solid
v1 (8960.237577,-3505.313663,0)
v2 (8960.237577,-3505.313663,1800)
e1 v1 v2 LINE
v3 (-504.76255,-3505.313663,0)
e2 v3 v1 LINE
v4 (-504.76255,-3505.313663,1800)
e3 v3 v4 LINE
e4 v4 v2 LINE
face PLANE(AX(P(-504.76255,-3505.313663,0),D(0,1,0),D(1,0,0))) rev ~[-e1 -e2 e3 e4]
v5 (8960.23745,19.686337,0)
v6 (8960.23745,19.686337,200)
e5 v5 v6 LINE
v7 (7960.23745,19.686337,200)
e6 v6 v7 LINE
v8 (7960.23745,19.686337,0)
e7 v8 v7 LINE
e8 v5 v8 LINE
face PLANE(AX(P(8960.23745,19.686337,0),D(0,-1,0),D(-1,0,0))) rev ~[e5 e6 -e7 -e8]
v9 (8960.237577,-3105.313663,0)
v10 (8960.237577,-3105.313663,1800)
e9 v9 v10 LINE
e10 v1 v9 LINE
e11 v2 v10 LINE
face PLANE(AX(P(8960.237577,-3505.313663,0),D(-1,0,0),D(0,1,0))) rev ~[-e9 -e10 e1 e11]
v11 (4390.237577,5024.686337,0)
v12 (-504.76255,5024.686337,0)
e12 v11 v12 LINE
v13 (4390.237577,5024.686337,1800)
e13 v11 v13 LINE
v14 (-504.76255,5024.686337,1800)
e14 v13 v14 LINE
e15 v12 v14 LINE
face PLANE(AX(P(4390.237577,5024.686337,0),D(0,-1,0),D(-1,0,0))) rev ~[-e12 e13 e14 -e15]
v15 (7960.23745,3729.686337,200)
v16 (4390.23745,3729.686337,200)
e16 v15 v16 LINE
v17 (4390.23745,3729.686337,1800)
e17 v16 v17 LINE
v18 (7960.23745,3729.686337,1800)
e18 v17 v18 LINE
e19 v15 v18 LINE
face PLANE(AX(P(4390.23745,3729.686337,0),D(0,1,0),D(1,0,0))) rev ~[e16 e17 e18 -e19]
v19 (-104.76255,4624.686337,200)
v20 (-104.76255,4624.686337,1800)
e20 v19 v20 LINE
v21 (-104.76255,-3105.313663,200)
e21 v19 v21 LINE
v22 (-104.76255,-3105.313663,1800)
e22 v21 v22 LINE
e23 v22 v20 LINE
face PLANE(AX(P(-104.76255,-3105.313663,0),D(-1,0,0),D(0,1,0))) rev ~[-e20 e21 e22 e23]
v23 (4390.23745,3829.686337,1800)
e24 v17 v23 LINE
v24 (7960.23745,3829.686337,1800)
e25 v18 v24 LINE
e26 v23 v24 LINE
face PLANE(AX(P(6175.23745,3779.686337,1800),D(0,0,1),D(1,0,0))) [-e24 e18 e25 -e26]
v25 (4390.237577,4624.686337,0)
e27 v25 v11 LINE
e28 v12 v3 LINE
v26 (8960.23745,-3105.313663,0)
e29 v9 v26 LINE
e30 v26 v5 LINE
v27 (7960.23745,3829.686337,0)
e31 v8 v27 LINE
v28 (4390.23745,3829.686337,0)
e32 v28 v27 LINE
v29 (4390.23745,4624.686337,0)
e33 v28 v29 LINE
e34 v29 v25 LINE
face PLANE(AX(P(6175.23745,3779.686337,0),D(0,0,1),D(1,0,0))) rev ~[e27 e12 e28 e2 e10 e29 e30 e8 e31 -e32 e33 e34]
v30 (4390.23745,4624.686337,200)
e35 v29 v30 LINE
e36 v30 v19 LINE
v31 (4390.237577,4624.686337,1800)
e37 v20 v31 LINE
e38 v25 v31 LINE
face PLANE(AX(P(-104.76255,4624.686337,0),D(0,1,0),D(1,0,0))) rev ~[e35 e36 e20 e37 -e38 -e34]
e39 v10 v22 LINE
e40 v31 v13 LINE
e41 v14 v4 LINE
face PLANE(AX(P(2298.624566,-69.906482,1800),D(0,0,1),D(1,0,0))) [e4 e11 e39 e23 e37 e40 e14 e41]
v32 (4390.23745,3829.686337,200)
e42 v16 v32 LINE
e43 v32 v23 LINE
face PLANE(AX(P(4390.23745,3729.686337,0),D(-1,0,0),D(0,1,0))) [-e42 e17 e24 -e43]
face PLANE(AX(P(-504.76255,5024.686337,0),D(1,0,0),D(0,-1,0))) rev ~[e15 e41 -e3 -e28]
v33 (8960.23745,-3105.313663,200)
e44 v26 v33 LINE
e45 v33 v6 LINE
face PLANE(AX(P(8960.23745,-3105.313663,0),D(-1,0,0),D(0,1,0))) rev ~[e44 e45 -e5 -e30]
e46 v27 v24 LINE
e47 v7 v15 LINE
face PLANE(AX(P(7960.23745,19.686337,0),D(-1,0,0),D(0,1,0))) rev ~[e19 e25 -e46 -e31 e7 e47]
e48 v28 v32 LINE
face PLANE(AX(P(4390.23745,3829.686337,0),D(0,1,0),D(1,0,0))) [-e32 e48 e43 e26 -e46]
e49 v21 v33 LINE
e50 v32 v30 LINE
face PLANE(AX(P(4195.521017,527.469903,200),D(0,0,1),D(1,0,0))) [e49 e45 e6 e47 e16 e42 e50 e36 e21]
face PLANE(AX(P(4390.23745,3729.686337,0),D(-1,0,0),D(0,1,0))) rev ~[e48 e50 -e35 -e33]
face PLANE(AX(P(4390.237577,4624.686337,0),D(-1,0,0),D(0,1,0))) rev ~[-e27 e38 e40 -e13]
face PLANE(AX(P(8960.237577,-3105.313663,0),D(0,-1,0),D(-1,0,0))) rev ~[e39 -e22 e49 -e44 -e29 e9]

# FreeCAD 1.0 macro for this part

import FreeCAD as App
import Part
import Sketcher

doc = App.newDocument("Part")
params = doc.addObject("Spreadsheet::Sheet", "Params")
for row, (alias, value) in enumerate([
    ("sketch1_width", "9065 mm"),
    ("sketch1_width2", "1000 mm"),
    ("sketch1_width3", "3570 mm"),
    ("sketch1_height", "3125 mm"),
    ("sketch1_height2", "3710 mm"),
    ("pad1_length", "200 mm"),
    ("sketch2_height", "7730 mm"),
    ("sketch2_height2", "400 mm"),
    ("pad2_length", "1800 mm"),
    ("sketch3_width", "3570 mm"),
    ("sketch3_height", "100 mm"),
    ("pad3_length", "1800 mm"),
], start=1):
    params.set(f"A{row}", alias)
    params.set(f"B{row}", "=" + value)
    params.setAlias(f"B{row}", alias)

body = doc.addObject("PartDesign::Body", "Body")

sketch1 = body.newObject("Sketcher::SketchObject", "Sketch")
sketch1.AttachmentSupport = (doc.getObject("XY_Plane"), [""])
sketch1.MapMode = "FlatFace"
sketch1.addGeometry([
    Part.LineSegment(App.Vector(-105, -3105, 0), App.Vector(8960, -3105, 0)),
    Part.LineSegment(App.Vector(8960, -3105, 0), App.Vector(8960, 20, 0)),
    Part.LineSegment(App.Vector(8960, 20, 0), App.Vector(7960, 20, 0)),
    Part.LineSegment(App.Vector(7960, 20, 0), App.Vector(7960, 3730, 0)),
    Part.LineSegment(App.Vector(7960, 3730, 0), App.Vector(4390, 3730, 0)),
    Part.LineSegment(App.Vector(4390, 3730, 0), App.Vector(4390, 4625, 0)),
    Part.LineSegment(App.Vector(4390, 4625, 0), App.Vector(-105, 4625, 0)),
    Part.LineSegment(App.Vector(-105, 4625, 0), App.Vector(-105, -3105, 0)),
], False)
sketch1.addConstraint([
    Sketcher.Constraint("Coincident", 0, 2, 1, 1),
    Sketcher.Constraint("Coincident", 1, 2, 2, 1),
    Sketcher.Constraint("Coincident", 2, 2, 3, 1),
    Sketcher.Constraint("Coincident", 3, 2, 4, 1),
    Sketcher.Constraint("Coincident", 4, 2, 5, 1),
    Sketcher.Constraint("Coincident", 5, 2, 6, 1),
    Sketcher.Constraint("Coincident", 6, 2, 7, 1),
    Sketcher.Constraint("Coincident", 7, 2, 0, 1),
    Sketcher.Constraint("Horizontal", 0),
    Sketcher.Constraint("Vertical", 1),
    Sketcher.Constraint("Horizontal", 2),
    Sketcher.Constraint("Vertical", 3),
    Sketcher.Constraint("Horizontal", 4),
    Sketcher.Constraint("Vertical", 5),
    Sketcher.Constraint("Horizontal", 6),
    Sketcher.Constraint("Vertical", 7),
    Sketcher.Constraint("DistanceX", 0, 1, 0, 2, 9065.0),
    Sketcher.Constraint("DistanceX", 2, 2, 2, 1, 1000.0),
    Sketcher.Constraint("DistanceX", 4, 2, 4, 1, 3570.0),
    Sketcher.Constraint("DistanceY", 1, 1, 1, 2, 3125.0),
    Sketcher.Constraint("DistanceY", 3, 1, 3, 2, 3710.0),
    Sketcher.Constraint("DistanceY", 5, 1, 5, 2, 895.0),
    Sketcher.Constraint("DistanceX", -1, 1, 0, 2, 8960.23745),
    Sketcher.Constraint("DistanceY", 0, 2, -1, 1, 3105.313663),
])
sketch1.setExpression("Constraints[16]", "Params.sketch1_width")
sketch1.setExpression("Constraints[17]", "Params.sketch1_width2")
sketch1.setExpression("Constraints[18]", "Params.sketch1_width3")
sketch1.setExpression("Constraints[19]", "Params.sketch1_height")
sketch1.setExpression("Constraints[20]", "Params.sketch1_height2")
pad1 = body.newObject("PartDesign::Pad", "Pad")
pad1.Profile = sketch1
pad1.setExpression("Length", "Params.pad1_length")

sketch2 = body.newObject("Sketcher::SketchObject", "Sketch001")
sketch2.AttachmentSupport = (doc.getObject("XY_Plane"), [""])
sketch2.MapMode = "FlatFace"
sketch2.addGeometry([
    Part.LineSegment(App.Vector(-105, -3105, 0), App.Vector(-105, 4625, 0)),
    Part.LineSegment(App.Vector(-105, 4625, 0), App.Vector(4390, 4625, 0)),
    Part.LineSegment(App.Vector(4390, 4625, 0), App.Vector(4390, 5025, 0)),
    Part.LineSegment(App.Vector(4390, 5025, 0), App.Vector(-505, 5025, 0)),
    Part.LineSegment(App.Vector(-505, 5025, 0), App.Vector(-505, -3505, 0)),
    Part.LineSegment(App.Vector(-505, -3505, 0), App.Vector(8960, -3505, 0)),
    Part.LineSegment(App.Vector(8960, -3505, 0), App.Vector(8960, -3105, 0)),
    Part.LineSegment(App.Vector(8960, -3105, 0), App.Vector(-105, -3105, 0)),
], False)
sketch2.addConstraint([
    Sketcher.Constraint("Coincident", 0, 2, 1, 1),
    Sketcher.Constraint("Coincident", 1, 2, 2, 1),
    Sketcher.Constraint("Coincident", 2, 2, 3, 1),
    Sketcher.Constraint("Coincident", 3, 2, 4, 1),
    Sketcher.Constraint("Coincident", 4, 2, 5, 1),
    Sketcher.Constraint("Coincident", 5, 2, 6, 1),
    Sketcher.Constraint("Coincident", 6, 2, 7, 1),
    Sketcher.Constraint("Coincident", 7, 2, 0, 1),
    Sketcher.Constraint("Vertical", 0),
    Sketcher.Constraint("Horizontal", 1),
    Sketcher.Constraint("Vertical", 2),
    Sketcher.Constraint("Horizontal", 3),
    Sketcher.Constraint("Vertical", 4),
    Sketcher.Constraint("Horizontal", 5),
    Sketcher.Constraint("Vertical", 6),
    Sketcher.Constraint("Horizontal", 7),
    Sketcher.Constraint("Equal", 2, 6),
    Sketcher.Constraint("DistanceY", 0, 1, 0, 2, 7730.0),
    Sketcher.Constraint("DistanceY", 2, 1, 2, 2, 400.0),
    Sketcher.Constraint("DistanceX", 3, 2, 0, 2, 400.0),
    Sketcher.Constraint("DistanceX", 1, 2, 5, 2, 4570.0),
    Sketcher.Constraint("DistanceX", 1, 1, 1, 2, 4495.000127),
    Sketcher.Constraint("DistanceX", 0, 2, -1, 1, 104.76255),
    Sketcher.Constraint("DistanceY", -1, 1, 0, 2, 4624.686337),
])
sketch2.setExpression("Constraints[17]", "Params.sketch2_height")
sketch2.setExpression("Constraints[18]", "Params.sketch2_height2")
pad2 = body.newObject("PartDesign::Pad", "Pad001")
pad2.Profile = sketch2
pad2.setExpression("Length", "Params.pad2_length")

sketch3 = body.newObject("Sketcher::SketchObject", "Sketch002")
sketch3.AttachmentSupport = (doc.getObject("XY_Plane"), [""])
sketch3.MapMode = "FlatFace"
sketch3.addGeometry([
    Part.LineSegment(App.Vector(4390, 3830, 0), App.Vector(4390, 3730, 0)),
    Part.LineSegment(App.Vector(4390, 3730, 0), App.Vector(7960, 3730, 0)),
    Part.LineSegment(App.Vector(7960, 3730, 0), App.Vector(7960, 3830, 0)),
    Part.LineSegment(App.Vector(7960, 3830, 0), App.Vector(4390, 3830, 0)),
], False)
sketch3.addConstraint([
    Sketcher.Constraint("Coincident", 0, 2, 1, 1),
    Sketcher.Constraint("Coincident", 1, 2, 2, 1),
    Sketcher.Constraint("Coincident", 2, 2, 3, 1),
    Sketcher.Constraint("Coincident", 3, 2, 0, 1),
    Sketcher.Constraint("Vertical", 0),
    Sketcher.Constraint("Horizontal", 1),
    Sketcher.Constraint("Vertical", 2),
    Sketcher.Constraint("Horizontal", 3),
    Sketcher.Constraint("DistanceX", 1, 1, 1, 2, 3570.0),
    Sketcher.Constraint("DistanceY", 0, 2, 0, 1, 100.0),
    Sketcher.Constraint("DistanceX", -1, 1, 0, 2, 4390.23745),
    Sketcher.Constraint("DistanceY", -1, 1, 0, 2, 3729.686337),
])
sketch3.setExpression("Constraints[8]", "Params.sketch3_width")
sketch3.setExpression("Constraints[9]", "Params.sketch3_height")
pad3 = body.newObject("PartDesign::Pad", "Pad002")
pad3.Profile = sketch3
pad3.setExpression("Length", "Params.pad3_length")

doc.recompute()
